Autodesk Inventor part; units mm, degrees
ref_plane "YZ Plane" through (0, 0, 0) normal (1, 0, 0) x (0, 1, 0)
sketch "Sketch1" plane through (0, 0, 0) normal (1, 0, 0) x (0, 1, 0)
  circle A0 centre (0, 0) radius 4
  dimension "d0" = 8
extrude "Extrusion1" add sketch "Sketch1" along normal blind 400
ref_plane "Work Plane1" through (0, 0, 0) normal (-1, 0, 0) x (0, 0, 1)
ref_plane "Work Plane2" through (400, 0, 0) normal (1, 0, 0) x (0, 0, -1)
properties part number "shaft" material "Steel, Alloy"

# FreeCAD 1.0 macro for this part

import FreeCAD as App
import Part
import Sketcher

V = App.Vector

doc = App.newDocument("Part")
params = doc.addObject("Spreadsheet::Sheet", "Params")
for row, (alias, value) in enumerate([
    ("sketch1_diameter", "8 mm"),
    ("pad1_length", "400 mm"),
], start=1):
    params.set(f"A{row}", alias)
    params.set(f"B{row}", "=" + value)
    params.setAlias(f"B{row}", alias)

body = doc.addObject("PartDesign::Body", "Body")

# Sketch on YZ plane
sketch1 = doc.addObject("Sketcher::SketchObject", "Sketch")
body.addObject(sketch1)
sketch1.AttachmentSupport = (doc.YZ_Plane, [""])
sketch1.MapMode = "FlatFace"
sketch1.addGeometry(Part.Circle(V(0, 0, 0), V(0, 0, 1), 4), False)
sketch1.addConstraint([
    Sketcher.Constraint("Coincident", 0, 3, -1, 1),
    Sketcher.Constraint("Diameter", 0, 8.0),
])
sketch1.setExpression("Constraints[1]", "Params.sketch1_diameter")
pad1 = doc.addObject("PartDesign::Pad", "Pad")
body.addObject(pad1)
pad1.Profile = sketch1
pad1.setExpression("Length", "Params.pad1_length")

doc.recompute()
